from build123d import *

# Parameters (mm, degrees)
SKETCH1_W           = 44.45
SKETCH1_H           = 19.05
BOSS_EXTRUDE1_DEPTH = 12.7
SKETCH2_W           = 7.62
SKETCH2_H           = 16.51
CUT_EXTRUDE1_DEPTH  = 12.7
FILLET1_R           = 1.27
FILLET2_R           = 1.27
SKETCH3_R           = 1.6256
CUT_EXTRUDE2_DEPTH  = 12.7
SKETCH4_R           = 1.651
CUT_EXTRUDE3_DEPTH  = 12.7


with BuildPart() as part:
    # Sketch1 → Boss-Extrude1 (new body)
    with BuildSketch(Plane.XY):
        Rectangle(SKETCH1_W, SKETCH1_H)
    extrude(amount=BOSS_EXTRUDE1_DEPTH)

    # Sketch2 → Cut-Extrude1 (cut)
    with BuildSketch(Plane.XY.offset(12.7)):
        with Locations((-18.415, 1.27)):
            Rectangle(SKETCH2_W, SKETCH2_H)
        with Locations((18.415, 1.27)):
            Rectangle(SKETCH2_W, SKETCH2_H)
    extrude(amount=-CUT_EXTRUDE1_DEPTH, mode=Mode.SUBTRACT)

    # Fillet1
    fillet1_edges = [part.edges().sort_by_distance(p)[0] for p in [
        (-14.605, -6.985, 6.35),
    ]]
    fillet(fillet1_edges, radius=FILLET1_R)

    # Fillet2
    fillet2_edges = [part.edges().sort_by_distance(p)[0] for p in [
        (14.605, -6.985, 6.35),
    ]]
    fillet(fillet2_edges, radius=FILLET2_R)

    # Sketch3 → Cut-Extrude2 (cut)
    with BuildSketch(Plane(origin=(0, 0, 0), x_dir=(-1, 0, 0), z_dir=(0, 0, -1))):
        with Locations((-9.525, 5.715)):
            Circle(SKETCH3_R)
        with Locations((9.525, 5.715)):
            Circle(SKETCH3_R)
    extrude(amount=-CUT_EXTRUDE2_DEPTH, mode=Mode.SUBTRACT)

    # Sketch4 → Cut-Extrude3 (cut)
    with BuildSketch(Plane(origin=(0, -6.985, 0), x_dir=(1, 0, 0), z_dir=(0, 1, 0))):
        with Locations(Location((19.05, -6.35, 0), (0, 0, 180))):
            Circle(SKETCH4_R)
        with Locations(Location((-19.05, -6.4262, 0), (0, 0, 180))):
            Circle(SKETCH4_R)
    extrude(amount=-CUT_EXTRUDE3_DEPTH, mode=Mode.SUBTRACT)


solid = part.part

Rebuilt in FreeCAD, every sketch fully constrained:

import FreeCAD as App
import Part
import Sketcher
from FreeCAD import Vector
Q = App.Units.Quantity


def edges_at(feature, points):
    """Names of the edges that pass closest to the given points."""
    edges = feature.Shape.Edges
    near = lambda p: min(range(len(edges)), key=lambda i: edges[i].distToShape(Part.Vertex(*p))[0])
    return sorted({f"Edge{near(p) + 1}" for p in points})


def add_polygon(sketch, points):
    """Adds a closed chain of lines whose ends are joined by coincident constraints."""
    first, n = sketch.GeometryCount, len(points)
    for a, b in zip(points, points[1:] + points[:1]):
        sketch.addGeometry(Part.LineSegment(App.Vector(*a, 0), App.Vector(*b, 0)), False)
    for i in range(n):
        sketch.addConstraint(Sketcher.Constraint("Coincident", first + i, 2, first + (i + 1) % n, 1))

doc = App.newDocument("Part")
body = doc.addObject("PartDesign::Body", "Body")

sketch1 = doc.addObject("Sketcher::SketchObject", "Sketch")
body.addObject(sketch1)
sketch1.AttachmentSupport = (doc.XY_Plane, [""])
sketch1.MapMode = "FlatFace"
add_polygon(sketch1, [(-22.225, 9.525), (-22.225, -9.525), (22.225, -9.525), (22.225, 9.525)])
sketch1.addConstraint(Sketcher.Constraint("Vertical", 0))
sketch1.addConstraint(Sketcher.Constraint("Horizontal", 1))
sketch1.addConstraint(Sketcher.Constraint("Vertical", 2))
sketch1.addConstraint(Sketcher.Constraint("Horizontal", 3))
sketch1.addConstraint(Sketcher.Constraint("Symmetric", 0, 2, 2, 2, -1, 1))
sketch1.addConstraint(Sketcher.Constraint("DistanceX", 1, 1, 1, 2, Q("1.75 in")))
sketch1.addConstraint(Sketcher.Constraint("DistanceY", 0, 2, 0, 1, Q("0.75 in")))
pad1 = doc.addObject("PartDesign::Pad", "Pad")
body.addObject(pad1)
pad1.Profile = sketch1
pad1.Length = Q("0.5 in")

sketch2 = doc.addObject("Sketcher::SketchObject", "Sketch001")
body.addObject(sketch2)
sketch2.AttachmentSupport = (doc.XY_Plane, [""])
sketch2.MapMode = "FlatFace"
sketch2.AttachmentOffset = App.Placement(Vector(0, 0, 0.5 * 25.4), App.Rotation())
add_polygon(sketch2, [(-22.225, 9.525), (-22.225, -6.985), (-14.605, -6.985), (-14.605, 9.525)])
add_polygon(sketch2, [(14.605, 9.525), (14.605, -6.985), (22.225, -6.985), (22.225, 9.525)])
sketch2.addConstraint(Sketcher.Constraint("Vertical", 0))
sketch2.addConstraint(Sketcher.Constraint("Horizontal", 1))
sketch2.addConstraint(Sketcher.Constraint("Vertical", 2))
sketch2.addConstraint(Sketcher.Constraint("Horizontal", 3))
sketch2.addConstraint(Sketcher.Constraint("Vertical", 4))
sketch2.addConstraint(Sketcher.Constraint("Horizontal", 5))
sketch2.addConstraint(Sketcher.Constraint("Vertical", 6))
sketch2.addConstraint(Sketcher.Constraint("Horizontal", 7))
sketch2.addConstraint(Sketcher.Constraint("Symmetric", 1, 2, 4, 2, -2))
sketch2.addConstraint(Sketcher.Constraint("Symmetric", 3, 2, 6, 2, -2))
sketch2.addConstraint(Sketcher.Constraint("DistanceX", 1, 1, 1, 2, Q("0.3 in")))
sketch2.addConstraint(Sketcher.Constraint("DistanceY", 0, 2, 0, 1, Q("0.65 in")))
sketch2.addConstraint(Sketcher.Constraint("DistanceX", 1, 2, 4, 2, Q("1.15 in")))
sketch2.addConstraint(Sketcher.Constraint("DistanceY", 0, 2, -1, 1, Q("0.275 in")))
pocket1 = doc.addObject("PartDesign::Pocket", "Pocket")
body.addObject(pocket1)
pocket1.Profile = sketch2
pocket1.Length = Q("0.5 in")
doc.recompute()

fillet = doc.addObject("PartDesign::Fillet", "Fillet")
body.addObject(fillet)
fillet.Base = (pocket1, edges_at(pocket1, [(-14.605, -6.985, 6.35)]))
fillet.Radius = Q("0.05 in")
doc.recompute()

fillet2 = doc.addObject("PartDesign::Fillet", "Fillet001")
body.addObject(fillet2)
fillet2.Base = (fillet, edges_at(fillet, [(14.605, -6.985, 6.35)]))
fillet2.Radius = Q("0.05 in")

sketch3 = doc.addObject("Sketcher::SketchObject", "Sketch002")
body.addObject(sketch3)
sketch3.AttachmentSupport = (doc.XY_Plane, [""])
sketch3.MapMode = "FlatFace"
sketch3.addGeometry(Part.Circle(Vector(9.525, 5.715, 0), Vector(0, 0, 1), 1.6256), False)
sketch3.addGeometry(Part.Circle(Vector(-9.525, 5.715, 0), Vector(0, 0, 1), 1.6256), False)
sketch3.addConstraint(Sketcher.Constraint("Equal", 0, 1))
sketch3.addConstraint(Sketcher.Constraint("Symmetric", 0, 3, 1, 3, -2))
sketch3.addConstraint(Sketcher.Constraint("Diameter", 0, Q("0.128 in")))
sketch3.addConstraint(Sketcher.Constraint("DistanceX", 1, 3, 0, 3, Q("0.75 in")))
sketch3.addConstraint(Sketcher.Constraint("DistanceY", -1, 1, 0, 3, Q("0.225 in")))
pocket2 = doc.addObject("PartDesign::Pocket", "Pocket001")
body.addObject(pocket2)
pocket2.Profile = sketch3
pocket2.Length = Q("0.5 in")
pocket2.Reversed = True

sketch4 = doc.addObject("Sketcher::SketchObject", "Sketch003")
body.addObject(sketch4)
sketch4.AttachmentSupport = (doc.XZ_Plane, [""])
sketch4.MapMode = "FlatFace"
sketch4.AttachmentOffset = App.Placement(Vector(0, 0, 0.275 * 25.4), App.Rotation())
sketch4.addGeometry(Part.Circle(Vector(19.05, 6.35, 0), Vector(0, 0, 1), 1.651), False)
sketch4.addGeometry(Part.Circle(Vector(-19.05, 6.4262, 0), Vector(0, 0, 1), 1.651), False)
sketch4.addConstraint(Sketcher.Constraint("Equal", 0, 1))
sketch4.addConstraint(Sketcher.Constraint("Diameter", 0, Q("0.13 in")))
sketch4.addConstraint(Sketcher.Constraint("DistanceX", 1, 3, 0, 3, Q("1.5 in")))
sketch4.addConstraint(Sketcher.Constraint("DistanceX", -1, 1, 0, 3, Q("0.75 in")))
sketch4.addConstraint(Sketcher.Constraint("DistanceY", -1, 1, 0, 3, Q("0.25 in")))
sketch4.addConstraint(Sketcher.Constraint("DistanceY", -1, 1, 1, 3, Q("0.253 in")))
pocket3 = doc.addObject("PartDesign::Pocket", "Pocket002")
body.addObject(pocket3)
pocket3.Profile = sketch4
pocket3.Length = Q("0.5 in")
pocket3.Reversed = True

doc.recompute()
